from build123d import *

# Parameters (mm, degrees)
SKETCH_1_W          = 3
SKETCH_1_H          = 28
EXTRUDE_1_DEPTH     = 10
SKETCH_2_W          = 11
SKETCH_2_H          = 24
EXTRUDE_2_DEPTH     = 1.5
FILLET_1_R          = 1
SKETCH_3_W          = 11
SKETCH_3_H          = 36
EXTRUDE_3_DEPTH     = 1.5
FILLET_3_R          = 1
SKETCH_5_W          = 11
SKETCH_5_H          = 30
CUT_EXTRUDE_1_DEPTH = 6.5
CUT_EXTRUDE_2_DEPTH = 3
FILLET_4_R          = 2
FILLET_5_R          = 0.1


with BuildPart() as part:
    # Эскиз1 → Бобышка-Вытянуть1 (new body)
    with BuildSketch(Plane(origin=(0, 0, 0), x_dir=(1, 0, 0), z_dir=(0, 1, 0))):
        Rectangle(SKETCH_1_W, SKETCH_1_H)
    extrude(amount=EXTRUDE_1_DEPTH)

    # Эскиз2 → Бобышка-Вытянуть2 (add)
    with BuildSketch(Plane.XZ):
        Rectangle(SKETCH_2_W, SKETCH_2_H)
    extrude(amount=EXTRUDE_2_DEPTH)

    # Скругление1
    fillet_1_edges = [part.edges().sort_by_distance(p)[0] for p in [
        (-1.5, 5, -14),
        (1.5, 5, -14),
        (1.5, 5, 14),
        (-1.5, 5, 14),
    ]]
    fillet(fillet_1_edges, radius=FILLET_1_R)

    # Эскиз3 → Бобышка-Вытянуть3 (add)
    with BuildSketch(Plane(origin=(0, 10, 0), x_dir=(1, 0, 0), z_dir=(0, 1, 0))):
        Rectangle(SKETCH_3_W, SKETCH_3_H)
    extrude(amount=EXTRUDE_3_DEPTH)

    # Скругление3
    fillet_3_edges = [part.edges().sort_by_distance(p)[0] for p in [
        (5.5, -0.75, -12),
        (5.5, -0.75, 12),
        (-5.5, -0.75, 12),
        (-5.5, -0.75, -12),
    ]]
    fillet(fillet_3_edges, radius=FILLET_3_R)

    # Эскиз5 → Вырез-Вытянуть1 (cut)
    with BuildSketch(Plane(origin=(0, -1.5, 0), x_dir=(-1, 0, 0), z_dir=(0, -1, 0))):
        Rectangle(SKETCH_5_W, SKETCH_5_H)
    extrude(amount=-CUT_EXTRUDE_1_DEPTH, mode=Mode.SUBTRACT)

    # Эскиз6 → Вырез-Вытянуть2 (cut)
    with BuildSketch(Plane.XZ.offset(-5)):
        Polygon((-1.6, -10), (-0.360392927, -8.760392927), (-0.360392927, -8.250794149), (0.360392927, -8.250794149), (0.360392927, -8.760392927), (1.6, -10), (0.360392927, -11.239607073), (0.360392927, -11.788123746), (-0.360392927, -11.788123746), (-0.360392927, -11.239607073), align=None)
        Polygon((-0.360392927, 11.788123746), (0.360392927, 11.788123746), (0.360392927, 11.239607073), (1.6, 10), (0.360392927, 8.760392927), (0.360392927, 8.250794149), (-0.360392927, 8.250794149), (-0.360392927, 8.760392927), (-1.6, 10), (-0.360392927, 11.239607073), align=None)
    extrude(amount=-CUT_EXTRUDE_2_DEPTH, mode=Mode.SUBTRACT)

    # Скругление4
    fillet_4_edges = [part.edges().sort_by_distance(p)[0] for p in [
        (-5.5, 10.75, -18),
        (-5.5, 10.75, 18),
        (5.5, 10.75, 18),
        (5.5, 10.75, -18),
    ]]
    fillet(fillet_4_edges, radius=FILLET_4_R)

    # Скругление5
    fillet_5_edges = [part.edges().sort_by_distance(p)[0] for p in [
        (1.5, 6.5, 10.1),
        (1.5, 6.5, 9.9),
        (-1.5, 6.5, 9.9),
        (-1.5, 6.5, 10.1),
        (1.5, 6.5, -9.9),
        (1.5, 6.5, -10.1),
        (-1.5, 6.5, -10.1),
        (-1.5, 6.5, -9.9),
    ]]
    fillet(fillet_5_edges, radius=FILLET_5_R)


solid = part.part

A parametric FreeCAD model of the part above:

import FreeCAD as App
import Part
import Sketcher
from FreeCAD import Vector


def edges_at(feature, points):
    """Names of the edges that pass closest to the given points."""
    edges = feature.Shape.Edges
    near = lambda p: min(range(len(edges)), key=lambda i: edges[i].distToShape(Part.Vertex(*p))[0])
    return sorted({f"Edge{near(p) + 1}" for p in points})

doc = App.newDocument("Part")
body = doc.addObject("PartDesign::Body", "Body")

# Sketch on XZ plane
sketch1 = body.newObject("Sketcher::SketchObject", "Sketch")
sketch1.AttachmentSupport = (doc.getObject("XZ_Plane"), [""])
sketch1.MapMode = "FlatFace"
sketch1.addGeometry(Part.LineSegment(Vector(-1.5, -14, 0), Vector(-1.5, 14, 0)), False)
sketch1.addGeometry(Part.LineSegment(Vector(-1.5, 14, 0), Vector(1.5, 14, 0)), False)
sketch1.addGeometry(Part.LineSegment(Vector(1.5, 14, 0), Vector(1.5, -14, 0)), False)
sketch1.addGeometry(Part.LineSegment(Vector(1.5, -14, 0), Vector(-1.5, -14, 0)), False)
sketch1.addConstraint(Sketcher.Constraint("Coincident", 0, 2, 1, 1))
sketch1.addConstraint(Sketcher.Constraint("Coincident", 1, 2, 2, 1))
sketch1.addConstraint(Sketcher.Constraint("Coincident", 2, 2, 3, 1))
sketch1.addConstraint(Sketcher.Constraint("Coincident", 3, 2, 0, 1))
sketch1.addConstraint(Sketcher.Constraint("Vertical", 0))
sketch1.addConstraint(Sketcher.Constraint("Horizontal", 1))
sketch1.addConstraint(Sketcher.Constraint("Vertical", 2))
sketch1.addConstraint(Sketcher.Constraint("Horizontal", 3))
sketch1.addConstraint(Sketcher.Constraint("Symmetric", 0, 2, 2, 2, -1, 1))
sketch1.addConstraint(Sketcher.Constraint("DistanceX", 1, 1, 1, 2, 3.0))
sketch1.addConstraint(Sketcher.Constraint("DistanceY", 0, 1, 0, 2, 28.0))
pad1 = body.newObject("PartDesign::Pad", "Pad")
pad1.Profile = sketch1
pad1.Length = 10
pad1.Reversed = True

# Sketch on XZ plane
sketch2 = body.newObject("Sketcher::SketchObject", "Sketch001")
sketch2.AttachmentSupport = (doc.getObject("XZ_Plane"), [""])
sketch2.MapMode = "FlatFace"
sketch2.addGeometry(Part.LineSegment(Vector(-6, 12, 0), Vector(-6, -12, 0)), False)
sketch2.addGeometry(Part.LineSegment(Vector(-6, -12, 0), Vector(6, -12, 0)), False)
sketch2.addGeometry(Part.LineSegment(Vector(6, -12, 0), Vector(6, 12, 0)), False)
sketch2.addGeometry(Part.LineSegment(Vector(6, 12, 0), Vector(-6, 12, 0)), False)
sketch2.addConstraint(Sketcher.Constraint("Coincident", 0, 2, 1, 1))
sketch2.addConstraint(Sketcher.Constraint("Coincident", 1, 2, 2, 1))
sketch2.addConstraint(Sketcher.Constraint("Coincident", 2, 2, 3, 1))
sketch2.addConstraint(Sketcher.Constraint("Coincident", 3, 2, 0, 1))
sketch2.addConstraint(Sketcher.Constraint("Vertical", 0))
sketch2.addConstraint(Sketcher.Constraint("Horizontal", 1))
sketch2.addConstraint(Sketcher.Constraint("Vertical", 2))
sketch2.addConstraint(Sketcher.Constraint("Horizontal", 3))
sketch2.addConstraint(Sketcher.Constraint("Symmetric", 0, 2, 2, 2, -1, 1))
sketch2.addConstraint(Sketcher.Constraint("DistanceX", 1, 1, 1, 2, 11.0))
sketch2.addConstraint(Sketcher.Constraint("DistanceY", 0, 2, 0, 1, 24.0))
pad2 = body.newObject("PartDesign::Pad", "Pad001")
pad2.Profile = sketch2
pad2.Length = 1.5
doc.recompute()

fillet = body.newObject("PartDesign::Fillet", "Fillet")
fillet.Base = (pad2, edges_at(pad2, [
    (-1.5, 5, -14),
    (1.5, 5, -14),
    (1.5, 5, 14),
    (-1.5, 5, 14),
]))
fillet.Radius = 1

# Sketch on XZ plane
sketch3 = body.newObject("Sketcher::SketchObject", "Sketch002")
sketch3.AttachmentSupport = (doc.getObject("XZ_Plane"), [""])
sketch3.MapMode = "FlatFace"
sketch3.AttachmentOffset = App.Placement(Vector(0, 0, -10), App.Rotation())
sketch3.addGeometry(Part.LineSegment(Vector(-6, -18, 0), Vector(-6, 18, 0)), False)
sketch3.addGeometry(Part.LineSegment(Vector(-6, 18, 0), Vector(6, 18, 0)), False)
sketch3.addGeometry(Part.LineSegment(Vector(6, 18, 0), Vector(6, -18, 0)), False)
sketch3.addGeometry(Part.LineSegment(Vector(6, -18, 0), Vector(-6, -18, 0)), False)
sketch3.addConstraint(Sketcher.Constraint("Coincident", 0, 2, 1, 1))
sketch3.addConstraint(Sketcher.Constraint("Coincident", 1, 2, 2, 1))
sketch3.addConstraint(Sketcher.Constraint("Coincident", 2, 2, 3, 1))
sketch3.addConstraint(Sketcher.Constraint("Coincident", 3, 2, 0, 1))
sketch3.addConstraint(Sketcher.Constraint("Vertical", 0))
sketch3.addConstraint(Sketcher.Constraint("Horizontal", 1))
sketch3.addConstraint(Sketcher.Constraint("Vertical", 2))
sketch3.addConstraint(Sketcher.Constraint("Horizontal", 3))
sketch3.addConstraint(Sketcher.Constraint("Symmetric", 0, 2, 2, 2, -1, 1))
sketch3.addConstraint(Sketcher.Constraint("DistanceX", 1, 1, 1, 2, 11.0))
sketch3.addConstraint(Sketcher.Constraint("DistanceY", 0, 1, 0, 2, 36.0))
pad3 = body.newObject("PartDesign::Pad", "Pad002")
pad3.Profile = sketch3
pad3.Length = 1.5
pad3.Reversed = True
doc.recompute()

fillet2 = body.newObject("PartDesign::Fillet", "Fillet001")
fillet2.Base = (pad3, edges_at(pad3, [
    (5.5, -0.75, -12),
    (5.5, -0.75, 12),
    (-5.5, -0.75, 12),
    (-5.5, -0.75, -12),
]))
fillet2.Radius = 1

# Sketch on XZ plane
sketch4 = body.newObject("Sketcher::SketchObject", "Sketch003")
sketch4.AttachmentSupport = (doc.getObject("XZ_Plane"), [""])
sketch4.MapMode = "FlatFace"
sketch4.AttachmentOffset = App.Placement(Vector(0, 0, 1.5), App.Rotation())
sketch4.addGeometry(Part.LineSegment(Vector(6, -15, 0), Vector(6, 15, 0)), False)
sketch4.addGeometry(Part.LineSegment(Vector(6, 15, 0), Vector(-6, 15, 0)), False)
sketch4.addGeometry(Part.LineSegment(Vector(-6, 15, 0), Vector(-6, -15, 0)), False)
sketch4.addGeometry(Part.LineSegment(Vector(-6, -15, 0), Vector(6, -15, 0)), False)
sketch4.addConstraint(Sketcher.Constraint("Coincident", 0, 2, 1, 1))
sketch4.addConstraint(Sketcher.Constraint("Coincident", 1, 2, 2, 1))
sketch4.addConstraint(Sketcher.Constraint("Coincident", 2, 2, 3, 1))
sketch4.addConstraint(Sketcher.Constraint("Coincident", 3, 2, 0, 1))
sketch4.addConstraint(Sketcher.Constraint("Vertical", 0))
sketch4.addConstraint(Sketcher.Constraint("Horizontal", 1))
sketch4.addConstraint(Sketcher.Constraint("Vertical", 2))
sketch4.addConstraint(Sketcher.Constraint("Horizontal", 3))
sketch4.addConstraint(Sketcher.Constraint("Symmetric", 0, 2, 2, 2, -1, 1))
sketch4.addConstraint(Sketcher.Constraint("DistanceX", 1, 2, 1, 1, 11.0))
sketch4.addConstraint(Sketcher.Constraint("DistanceY", 0, 1, 0, 2, 30.0))
pocket1 = body.newObject("PartDesign::Pocket", "Pocket")
pocket1.Profile = sketch4
pocket1.Length = 6.5

# Sketch on XZ plane
sketch5 = body.newObject("Sketcher::SketchObject", "Sketch004")
sketch5.AttachmentSupport = (doc.getObject("XZ_Plane"), [""])
sketch5.MapMode = "FlatFace"
sketch5.AttachmentOffset = App.Placement(Vector(0, 0, -5), App.Rotation())
sketch5.addGeometry(Part.LineSegment(Vector(-0.4, -8.8, 0), Vector(-1.6, -10, 0)), False)
sketch5.addGeometry(Part.LineSegment(Vector(-1.6, -10, 0), Vector(-0.4, -11.2, 0)), False)
sketch5.addGeometry(Part.LineSegment(Vector(-0.4, -11.2, 0), Vector(-0.4, -11.8, 0)), False)
sketch5.addGeometry(Part.LineSegment(Vector(-0.4, -11.8, 0), Vector(0.4, -11.8, 0)), False)
sketch5.addGeometry(Part.LineSegment(Vector(0.4, -11.8, 0), Vector(0.4, -11.2, 0)), False)
sketch5.addGeometry(Part.LineSegment(Vector(0.4, -11.2, 0), Vector(1.6, -10, 0)), False)
sketch5.addGeometry(Part.LineSegment(Vector(1.6, -10, 0), Vector(0.4, -8.8, 0)), False)
sketch5.addGeometry(Part.LineSegment(Vector(0.4, -8.8, 0), Vector(0.4, -8.3, 0)), False)
sketch5.addGeometry(Part.LineSegment(Vector(0.4, -8.3, 0), Vector(-0.4, -8.3, 0)), False)
sketch5.addGeometry(Part.LineSegment(Vector(-0.4, -8.3, 0), Vector(-0.4, -8.8, 0)), False)
sketch5.addGeometry(Part.LineSegment(Vector(0.4, 11.8, 0), Vector(-0.4, 11.8, 0)), False)
sketch5.addGeometry(Part.LineSegment(Vector(-0.4, 11.8, 0), Vector(-0.4, 11.2, 0)), False)
sketch5.addGeometry(Part.LineSegment(Vector(-0.4, 11.2, 0), Vector(-1.6, 10, 0)), False)
sketch5.addGeometry(Part.LineSegment(Vector(-1.6, 10, 0), Vector(-0.4, 8.8, 0)), False)
sketch5.addGeometry(Part.LineSegment(Vector(-0.4, 8.8, 0), Vector(-0.4, 8.3, 0)), False)
sketch5.addGeometry(Part.LineSegment(Vector(-0.4, 8.3, 0), Vector(0.4, 8.3, 0)), False)
sketch5.addGeometry(Part.LineSegment(Vector(0.4, 8.3, 0), Vector(0.4, 8.8, 0)), False)
sketch5.addGeometry(Part.LineSegment(Vector(0.4, 8.8, 0), Vector(1.6, 10, 0)), False)
sketch5.addGeometry(Part.LineSegment(Vector(1.6, 10, 0), Vector(0.4, 11.2, 0)), False)
sketch5.addGeometry(Part.LineSegment(Vector(0.4, 11.2, 0), Vector(0.4, 11.8, 0)), False)
sketch5.addConstraint(Sketcher.Constraint("Coincident", 0, 2, 1, 1))
sketch5.addConstraint(Sketcher.Constraint("Coincident", 1, 2, 2, 1))
sketch5.addConstraint(Sketcher.Constraint("Coincident", 2, 2, 3, 1))
sketch5.addConstraint(Sketcher.Constraint("Coincident", 3, 2, 4, 1))
sketch5.addConstraint(Sketcher.Constraint("Coincident", 4, 2, 5, 1))
sketch5.addConstraint(Sketcher.Constraint("Coincident", 5, 2, 6, 1))
sketch5.addConstraint(Sketcher.Constraint("Coincident", 6, 2, 7, 1))
sketch5.addConstraint(Sketcher.Constraint("Coincident", 7, 2, 8, 1))
sketch5.addConstraint(Sketcher.Constraint("Coincident", 8, 2, 9, 1))
sketch5.addConstraint(Sketcher.Constraint("Coincident", 9, 2, 0, 1))
sketch5.addConstraint(Sketcher.Constraint("Coincident", 10, 2, 11, 1))
sketch5.addConstraint(Sketcher.Constraint("Coincident", 11, 2, 12, 1))
sketch5.addConstraint(Sketcher.Constraint("Coincident", 12, 2, 13, 1))
sketch5.addConstraint(Sketcher.Constraint("Coincident", 13, 2, 14, 1))
sketch5.addConstraint(Sketcher.Constraint("Coincident", 14, 2, 15, 1))
sketch5.addConstraint(Sketcher.Constraint("Coincident", 15, 2, 16, 1))
sketch5.addConstraint(Sketcher.Constraint("Coincident", 16, 2, 17, 1))
sketch5.addConstraint(Sketcher.Constraint("Coincident", 17, 2, 18, 1))
sketch5.addConstraint(Sketcher.Constraint("Coincident", 18, 2, 19, 1))
sketch5.addConstraint(Sketcher.Constraint("Coincident", 19, 2, 10, 1))
sketch5.addConstraint(Sketcher.Constraint("Vertical", 2))
sketch5.addConstraint(Sketcher.Constraint("Horizontal", 3))
sketch5.addConstraint(Sketcher.Constraint("Vertical", 4))
sketch5.addConstraint(Sketcher.Constraint("Vertical", 7))
sketch5.addConstraint(Sketcher.Constraint("Horizontal", 8))
sketch5.addConstraint(Sketcher.Constraint("Vertical", 9))
sketch5.addConstraint(Sketcher.Constraint("Horizontal", 10))
sketch5.addConstraint(Sketcher.Constraint("Vertical", 11))
sketch5.addConstraint(Sketcher.Constraint("Vertical", 14))
sketch5.addConstraint(Sketcher.Constraint("Horizontal", 15))
sketch5.addConstraint(Sketcher.Constraint("Vertical", 16))
sketch5.addConstraint(Sketcher.Constraint("Vertical", 19))
sketch5.addConstraint(Sketcher.Constraint("Symmetric", 3, 2, 10, 2, -1, 1))
sketch5.addConstraint(Sketcher.Constraint("Symmetric", 5, 2, 12, 2, -1, 1))
sketch5.addConstraint(Sketcher.Constraint("Symmetric", 6, 2, 13, 2, -1, 1))
sketch5.addConstraint(Sketcher.Constraint("Symmetric", 8, 2, 15, 2, -1, 1))
sketch5.addConstraint(Sketcher.Constraint("Symmetric", 0, 2, 17, 2, -1, 1))
sketch5.addConstraint(Sketcher.Constraint("Symmetric", 1, 2, 18, 2, -1, 1))
sketch5.addConstraint(Sketcher.Constraint("Symmetric", 1, 2, 4, 2, -2))
sketch5.addConstraint(Sketcher.Constraint("Symmetric", 0, 2, 5, 2, -2))
sketch5.addConstraint(Sketcher.Constraint("Symmetric", 6, 2, 9, 2, -2))
sketch5.addConstraint(Sketcher.Constraint("Perpendicular", 0, 1))
sketch5.addConstraint(Sketcher.Constraint("Perpendicular", 1, 5))
sketch5.addConstraint(Sketcher.Constraint("Perpendicular", 6, 12))
sketch5.addConstraint(Sketcher.Constraint("Perpendicular", 13, 17))
sketch5.addConstraint(Sketcher.Constraint("Vertical", 4, 2, 6, 2))
sketch5.addConstraint(Sketcher.Constraint("DistanceY", 0, 2, -1, 1, 10.0))
sketch5.addConstraint(Sketcher.Constraint("DistanceX", 0, 2, -1, 1, 1.6))
sketch5.addConstraint(Sketcher.Constraint("DistanceY", 7, 1, 7, 2, 0.509599))
sketch5.addConstraint(Sketcher.Constraint("Distance", 0, 1.753069))
sketch5.addConstraint(Sketcher.Constraint("DistanceY", 2, 2, 2, 1, 0.548517))
pocket2 = body.newObject("PartDesign::Pocket", "Pocket001")
pocket2.Profile = sketch5
pocket2.Length = 3
doc.recompute()

fillet3 = body.newObject("PartDesign::Fillet", "Fillet002")
fillet3.Base = (pocket2, edges_at(pocket2, [
    (-5.5, 10.75, -18),
    (-5.5, 10.75, 18),
    (5.5, 10.75, 18),
    (5.5, 10.75, -18),
]))
fillet3.Radius = 2
doc.recompute()

fillet4 = body.newObject("PartDesign::Fillet", "Fillet003")
fillet4.Base = (fillet3, edges_at(fillet3, [
    (1.5, 6.5, 10.1),
    (1.5, 6.5, 9.9),
    (-1.5, 6.5, 9.9),
    (-1.5, 6.5, 10.1),
    (1.5, 6.5, -9.9),
    (1.5, 6.5, -10.1),
    (-1.5, 6.5, -10.1),
    (-1.5, 6.5, -9.9),
]))
fillet4.Radius = 0.1

doc.recompute()
